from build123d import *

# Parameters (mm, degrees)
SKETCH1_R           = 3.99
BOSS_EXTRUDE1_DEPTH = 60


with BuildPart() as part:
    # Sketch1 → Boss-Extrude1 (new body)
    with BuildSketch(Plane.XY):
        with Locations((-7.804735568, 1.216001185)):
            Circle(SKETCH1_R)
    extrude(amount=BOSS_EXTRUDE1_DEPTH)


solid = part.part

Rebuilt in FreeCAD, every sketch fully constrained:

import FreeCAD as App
import Part
import Sketcher
Q = App.Units.Quantity

doc = App.newDocument("Part")
params = doc.addObject("Spreadsheet::Sheet", "Params")
for row, (alias, value) in enumerate([
    ("sketch1_diameter", "7.98 mm"),
    ("pad1_length", "60 mm"),
], start=1):
    params.set(f"A{row}", alias)
    params.set(f"B{row}", "=" + value)
    params.setAlias(f"B{row}", alias)

body = doc.addObject("PartDesign::Body", "Body")

# Sketch on XY plane
sketch1 = body.newObject("Sketcher::SketchObject", "Sketch")
sketch1.AttachmentSupport = (doc.getObject("XY_Plane"), [""])
sketch1.MapMode = "FlatFace"
sketch1.addGeometry(Part.Circle(App.Vector(-7.8, 1.2, 0), App.Vector(0, 0, 1), 4), False)
sketch1.addConstraint(Sketcher.Constraint("Diameter", 0, Q("7.98 mm")))
sketch1.addConstraint(Sketcher.Constraint("DistanceY", -1, 1, 0, 3, Q("1.216001 mm")))
sketch1.addConstraint(Sketcher.Constraint("DistanceX", 0, 3, -1, 1, Q("7.804736 mm")))
sketch1.setExpression("Constraints[0]", "Params.sketch1_diameter")
pad1 = body.newObject("PartDesign::Pad", "Pad")
pad1.Profile = sketch1
pad1.setExpression("Length", "Params.pad1_length")

doc.recompute()
